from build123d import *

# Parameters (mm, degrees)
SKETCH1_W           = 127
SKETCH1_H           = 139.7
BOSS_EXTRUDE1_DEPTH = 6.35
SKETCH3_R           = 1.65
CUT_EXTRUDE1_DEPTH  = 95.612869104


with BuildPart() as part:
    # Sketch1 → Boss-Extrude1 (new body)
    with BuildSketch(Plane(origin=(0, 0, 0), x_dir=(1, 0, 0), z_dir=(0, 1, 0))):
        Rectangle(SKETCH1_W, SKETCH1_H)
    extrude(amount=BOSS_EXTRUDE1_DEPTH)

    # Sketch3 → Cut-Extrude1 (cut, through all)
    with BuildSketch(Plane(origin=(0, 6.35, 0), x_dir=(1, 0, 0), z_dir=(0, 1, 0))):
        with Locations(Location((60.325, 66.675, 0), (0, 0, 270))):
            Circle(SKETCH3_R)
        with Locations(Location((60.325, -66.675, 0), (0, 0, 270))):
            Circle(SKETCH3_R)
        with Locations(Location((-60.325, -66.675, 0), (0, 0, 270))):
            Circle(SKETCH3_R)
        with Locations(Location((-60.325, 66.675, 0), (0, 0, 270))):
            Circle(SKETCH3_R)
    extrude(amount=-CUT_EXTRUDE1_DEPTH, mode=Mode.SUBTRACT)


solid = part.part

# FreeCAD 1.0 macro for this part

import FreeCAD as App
import Part
import Sketcher
Q = App.Units.Quantity


def add_polygon(sketch, points):
    """Adds a closed chain of lines whose ends are joined by coincident constraints."""
    first, n = sketch.GeometryCount, len(points)
    for a, b in zip(points, points[1:] + points[:1]):
        sketch.addGeometry(Part.LineSegment(App.Vector(*a, 0), App.Vector(*b, 0)), False)
    for i in range(n):
        sketch.addConstraint(Sketcher.Constraint("Coincident", first + i, 2, first + (i + 1) % n, 1))

doc = App.newDocument("Part")
body = doc.addObject("PartDesign::Body", "Body")

sketch1 = body.newObject("Sketcher::SketchObject", "Sketch")
sketch1.AttachmentSupport = (doc.getObject("XZ_Plane"), [""])
sketch1.MapMode = "FlatFace"
add_polygon(sketch1, [(-64, -70), (-64, 70), (64, 70), (64, -70)])
sketch1.addConstraint([
    Sketcher.Constraint("Vertical", 0),
    Sketcher.Constraint("Horizontal", 1),
    Sketcher.Constraint("Vertical", 2),
    Sketcher.Constraint("Horizontal", 3),
    Sketcher.Constraint("Symmetric", 0, 2, 2, 2, -1, 1),
    Sketcher.Constraint("DistanceX", 1, 1, 1, 2, Q("5 in")),
    Sketcher.Constraint("DistanceY", 0, 1, 0, 2, Q("5.5 in")),
])
pad1 = body.newObject("PartDesign::Pad", "Pad")
pad1.Profile = sketch1
pad1.Length = Q("0.25 in")
pad1.Reversed = True

sketch2 = body.newObject("Sketcher::SketchObject", "Sketch001")
sketch2.AttachmentSupport = (doc.getObject("XZ_Plane"), [""])
sketch2.MapMode = "FlatFace"
sketch2.AttachmentOffset = App.Placement(App.Vector(0, 0, -0.25 * 25.4), App.Rotation())
sketch2.addGeometry([
    Part.Circle(App.Vector(60.3, -66.7, 0), App.Vector(0, 0, 1), 1.6),
    Part.Circle(App.Vector(60.3, 66.7, 0), App.Vector(0, 0, 1), 1.6),
    Part.Circle(App.Vector(-60.3, 66.7, 0), App.Vector(0, 0, 1), 1.6),
    Part.Circle(App.Vector(-60.3, -66.7, 0), App.Vector(0, 0, 1), 1.6),
], False)
sketch2.addConstraint([
    Sketcher.Constraint("Equal", 0, 1),
    Sketcher.Constraint("Equal", 1, 2),
    Sketcher.Constraint("Equal", 2, 3),
    Sketcher.Constraint("Symmetric", 0, 3, 2, 3, -1, 1),
    Sketcher.Constraint("Symmetric", 1, 3, 3, 3, -1, 1),
    Sketcher.Constraint("Symmetric", 1, 3, 2, 3, -2),
    Sketcher.Constraint("Diameter", 0, Q("3.3 mm")),
    Sketcher.Constraint("DistanceY", 0, 3, 1, 3, Q("5.25 in")),
    Sketcher.Constraint("DistanceX", 2, 3, 1, 3, Q("4.75 in")),
])
pocket1 = body.newObject("PartDesign::Pocket", "Pocket")
pocket1.Profile = sketch2
pocket1.Type = "ThroughAll"
pocket1.Reversed = True

doc.recompute()
